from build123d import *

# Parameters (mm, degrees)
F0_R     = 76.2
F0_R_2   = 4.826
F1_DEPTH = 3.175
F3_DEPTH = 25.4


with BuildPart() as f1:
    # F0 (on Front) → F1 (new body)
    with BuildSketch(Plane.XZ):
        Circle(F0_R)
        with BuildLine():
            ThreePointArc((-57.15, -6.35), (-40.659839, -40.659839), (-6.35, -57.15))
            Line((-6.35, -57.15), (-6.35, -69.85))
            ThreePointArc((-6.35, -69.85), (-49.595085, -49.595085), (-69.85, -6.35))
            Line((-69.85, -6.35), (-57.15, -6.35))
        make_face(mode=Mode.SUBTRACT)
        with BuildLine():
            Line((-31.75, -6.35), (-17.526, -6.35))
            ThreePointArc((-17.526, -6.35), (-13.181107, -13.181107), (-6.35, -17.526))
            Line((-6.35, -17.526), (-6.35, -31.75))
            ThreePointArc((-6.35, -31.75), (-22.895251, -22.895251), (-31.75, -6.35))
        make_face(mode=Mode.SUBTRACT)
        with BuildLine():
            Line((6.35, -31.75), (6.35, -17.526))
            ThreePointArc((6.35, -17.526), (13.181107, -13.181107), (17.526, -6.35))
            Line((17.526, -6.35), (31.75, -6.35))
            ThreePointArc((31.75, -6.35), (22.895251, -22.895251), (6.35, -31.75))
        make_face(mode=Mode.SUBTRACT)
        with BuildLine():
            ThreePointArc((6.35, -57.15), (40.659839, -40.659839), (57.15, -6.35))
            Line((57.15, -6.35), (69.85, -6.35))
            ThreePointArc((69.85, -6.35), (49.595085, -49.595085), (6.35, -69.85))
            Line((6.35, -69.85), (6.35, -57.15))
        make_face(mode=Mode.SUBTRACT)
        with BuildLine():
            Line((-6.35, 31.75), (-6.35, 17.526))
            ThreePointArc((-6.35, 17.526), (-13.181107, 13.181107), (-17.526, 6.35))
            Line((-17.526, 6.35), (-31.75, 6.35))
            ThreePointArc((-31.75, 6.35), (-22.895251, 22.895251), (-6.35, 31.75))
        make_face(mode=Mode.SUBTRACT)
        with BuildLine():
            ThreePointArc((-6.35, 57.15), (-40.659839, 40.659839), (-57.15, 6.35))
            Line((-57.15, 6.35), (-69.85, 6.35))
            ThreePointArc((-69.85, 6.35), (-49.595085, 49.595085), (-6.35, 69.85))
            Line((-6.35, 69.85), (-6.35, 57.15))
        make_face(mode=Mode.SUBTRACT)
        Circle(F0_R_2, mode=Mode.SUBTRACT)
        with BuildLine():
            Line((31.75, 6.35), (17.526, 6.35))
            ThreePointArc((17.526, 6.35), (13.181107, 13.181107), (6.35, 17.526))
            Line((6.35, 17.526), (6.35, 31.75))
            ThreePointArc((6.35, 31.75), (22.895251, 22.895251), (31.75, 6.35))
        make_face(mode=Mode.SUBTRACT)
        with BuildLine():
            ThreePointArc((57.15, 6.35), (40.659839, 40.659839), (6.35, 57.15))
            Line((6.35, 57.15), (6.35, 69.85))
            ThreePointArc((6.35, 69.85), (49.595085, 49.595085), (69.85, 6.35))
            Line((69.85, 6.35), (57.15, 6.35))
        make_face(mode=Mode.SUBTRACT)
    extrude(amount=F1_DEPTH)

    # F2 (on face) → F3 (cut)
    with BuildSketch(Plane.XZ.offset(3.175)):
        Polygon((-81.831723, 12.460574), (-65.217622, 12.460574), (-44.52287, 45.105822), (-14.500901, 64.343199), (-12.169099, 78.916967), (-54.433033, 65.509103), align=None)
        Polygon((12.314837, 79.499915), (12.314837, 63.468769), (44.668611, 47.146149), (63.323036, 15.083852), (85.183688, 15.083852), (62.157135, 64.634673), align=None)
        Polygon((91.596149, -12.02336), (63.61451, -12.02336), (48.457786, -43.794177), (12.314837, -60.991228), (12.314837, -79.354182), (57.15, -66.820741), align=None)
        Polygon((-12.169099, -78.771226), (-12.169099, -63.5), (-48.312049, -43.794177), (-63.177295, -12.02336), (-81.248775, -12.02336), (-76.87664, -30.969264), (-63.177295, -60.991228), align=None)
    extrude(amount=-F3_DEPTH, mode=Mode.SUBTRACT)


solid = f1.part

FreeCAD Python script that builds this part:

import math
import FreeCAD as App
import Part
import Sketcher
Q = App.Units.Quantity


def add_polygon(sketch, points):
    """Adds a closed chain of lines whose ends are joined by coincident constraints."""
    first, n = sketch.GeometryCount, len(points)
    for a, b in zip(points, points[1:] + points[:1]):
        sketch.addGeometry(Part.LineSegment(App.Vector(*a, 0), App.Vector(*b, 0)), False)
    for i in range(n):
        sketch.addConstraint(Sketcher.Constraint("Coincident", first + i, 2, first + (i + 1) % n, 1))

doc = App.newDocument("Part")
body = doc.addObject("PartDesign::Body", "Body")

sketch1 = body.newObject("Sketcher::SketchObject", "Sketch")
sketch1.AttachmentSupport = (doc.getObject("XZ_Plane"), [""])
sketch1.MapMode = "FlatFace"
sketch1.addGeometry(Part.Circle(App.Vector(0, 0, 0), App.Vector(0, 0, 1), 76.2), False)
sketch1.addGeometry(Part.LineSegment(App.Vector(-69.8, -6.3, 0), App.Vector(-57.1, -6.3, 0)), False)
sketch1.addGeometry(Part.ArcOfCircle(Part.Circle(App.Vector(0, 0, 0), App.Vector(0, 0, 1), 57.5), math.radians(-174), math.radians(-96)), False)
sketch1.addGeometry(Part.LineSegment(App.Vector(-6.3, -57.1, 0), App.Vector(-6.3, -69.8, 0)), False)
sketch1.addGeometry(Part.ArcOfCircle(Part.Circle(App.Vector(0, 0, 0), App.Vector(0, 0, 1), 70.1), math.radians(-175), math.radians(-95)), False)
sketch1.addGeometry(Part.ArcOfCircle(Part.Circle(App.Vector(0, 0, 0), App.Vector(0, 0, 1), 32.4), math.radians(-169), math.radians(-101)), False)
sketch1.addGeometry(Part.LineSegment(App.Vector(-31.8, -6.3, 0), App.Vector(-17.5, -6.3, 0)), False)
sketch1.addGeometry(Part.ArcOfCircle(Part.Circle(App.Vector(0, 0, 0), App.Vector(0, 0, 1), 18.6), math.radians(-160), math.radians(-110)), False)
sketch1.addGeometry(Part.LineSegment(App.Vector(-6.3, -17.5, 0), App.Vector(-6.3, -31.8, 0)), False)
sketch1.addGeometry(Part.LineSegment(App.Vector(6.3, -69.8, 0), App.Vector(6.3, -57.1, 0)), False)
sketch1.addGeometry(Part.ArcOfCircle(Part.Circle(App.Vector(0, 0, 0), App.Vector(0, 0, 1), 57.5), math.radians(-84), math.radians(-6)), False)
sketch1.addGeometry(Part.LineSegment(App.Vector(57.1, -6.3, 0), App.Vector(69.8, -6.3, 0)), False)
sketch1.addGeometry(Part.ArcOfCircle(Part.Circle(App.Vector(0, 0, 0), App.Vector(0, 0, 1), 70.1), math.radians(-85), math.radians(-5)), False)
sketch1.addGeometry(Part.ArcOfCircle(Part.Circle(App.Vector(0, 0, 0), App.Vector(0, 0, 1), 32.4), math.radians(-79), math.radians(-11)), False)
sketch1.addGeometry(Part.LineSegment(App.Vector(6.3, -31.8, 0), App.Vector(6.3, -17.5, 0)), False)
sketch1.addGeometry(Part.ArcOfCircle(Part.Circle(App.Vector(0, 0, 0), App.Vector(0, 0, 1), 18.6), math.radians(-70), math.radians(-20)), False)
sketch1.addGeometry(Part.LineSegment(App.Vector(17.5, -6.3, 0), App.Vector(31.8, -6.3, 0)), False)
sketch1.addGeometry(Part.ArcOfCircle(Part.Circle(App.Vector(0, 0, 0), App.Vector(0, 0, 1), 32.4), math.radians(101), math.radians(169)), False)
sketch1.addGeometry(Part.LineSegment(App.Vector(-6.3, 31.8, 0), App.Vector(-6.3, 17.5, 0)), False)
sketch1.addGeometry(Part.ArcOfCircle(Part.Circle(App.Vector(0, 0, 0), App.Vector(0, 0, 1), 18.6), math.radians(110), math.radians(160)), False)
sketch1.addGeometry(Part.LineSegment(App.Vector(-17.5, 6.3, 0), App.Vector(-31.8, 6.3, 0)), False)
sketch1.addGeometry(Part.LineSegment(App.Vector(-6.3, 69.8, 0), App.Vector(-6.3, 57.1, 0)), False)
sketch1.addGeometry(Part.ArcOfCircle(Part.Circle(App.Vector(0, 0, 0), App.Vector(0, 0, 1), 57.5), math.radians(96), math.radians(174)), False)
sketch1.addGeometry(Part.LineSegment(App.Vector(-57.1, 6.3, 0), App.Vector(-69.8, 6.3, 0)), False)
sketch1.addGeometry(Part.ArcOfCircle(Part.Circle(App.Vector(0, 0, 0), App.Vector(0, 0, 1), 70.1), math.radians(95), math.radians(175)), False)
sketch1.addGeometry(Part.Circle(App.Vector(0, 0, 0), App.Vector(0, 0, 1), 4.8), False)
sketch1.addGeometry(Part.ArcOfCircle(Part.Circle(App.Vector(0, 0, 0), App.Vector(0, 0, 1), 32.4), math.radians(11), math.radians(79)), False)
sketch1.addGeometry(Part.LineSegment(App.Vector(31.8, 6.3, 0), App.Vector(17.5, 6.3, 0)), False)
sketch1.addGeometry(Part.ArcOfCircle(Part.Circle(App.Vector(0, 0, 0), App.Vector(0, 0, 1), 18.6), math.radians(20), math.radians(70)), False)
sketch1.addGeometry(Part.LineSegment(App.Vector(6.3, 17.5, 0), App.Vector(6.3, 31.8, 0)), False)
sketch1.addGeometry(Part.LineSegment(App.Vector(69.8, 6.3, 0), App.Vector(57.1, 6.3, 0)), False)
sketch1.addGeometry(Part.ArcOfCircle(Part.Circle(App.Vector(0, 0, 0), App.Vector(0, 0, 1), 57.5), math.radians(6), math.radians(84)), False)
sketch1.addGeometry(Part.LineSegment(App.Vector(6.3, 57.1, 0), App.Vector(6.3, 69.8, 0)), False)
sketch1.addGeometry(Part.ArcOfCircle(Part.Circle(App.Vector(0, 0, 0), App.Vector(0, 0, 1), 70.1), math.radians(5), math.radians(85)), False)
sketch1.addConstraint(Sketcher.Constraint("Coincident", 1, 2, 2, 1))
sketch1.addConstraint(Sketcher.Constraint("Coincident", 2, 2, 3, 1))
sketch1.addConstraint(Sketcher.Constraint("Coincident", 3, 2, 4, 2))
sketch1.addConstraint(Sketcher.Constraint("Coincident", 4, 1, 1, 1))
sketch1.addConstraint(Sketcher.Constraint("Coincident", 5, 1, 6, 1))
sketch1.addConstraint(Sketcher.Constraint("Coincident", 6, 2, 7, 1))
sketch1.addConstraint(Sketcher.Constraint("Coincident", 7, 2, 8, 1))
sketch1.addConstraint(Sketcher.Constraint("Coincident", 8, 2, 5, 2))
sketch1.addConstraint(Sketcher.Constraint("Coincident", 9, 2, 10, 1))
sketch1.addConstraint(Sketcher.Constraint("Coincident", 10, 2, 11, 1))
sketch1.addConstraint(Sketcher.Constraint("Coincident", 11, 2, 12, 2))
sketch1.addConstraint(Sketcher.Constraint("Coincident", 12, 1, 9, 1))
sketch1.addConstraint(Sketcher.Constraint("Coincident", 13, 1, 14, 1))
sketch1.addConstraint(Sketcher.Constraint("Coincident", 14, 2, 15, 1))
sketch1.addConstraint(Sketcher.Constraint("Coincident", 15, 2, 16, 1))
sketch1.addConstraint(Sketcher.Constraint("Coincident", 16, 2, 13, 2))
sketch1.addConstraint(Sketcher.Constraint("Coincident", 17, 1, 18, 1))
sketch1.addConstraint(Sketcher.Constraint("Coincident", 18, 2, 19, 1))
sketch1.addConstraint(Sketcher.Constraint("Coincident", 19, 2, 20, 1))
sketch1.addConstraint(Sketcher.Constraint("Coincident", 20, 2, 17, 2))
sketch1.addConstraint(Sketcher.Constraint("Coincident", 21, 2, 22, 1))
sketch1.addConstraint(Sketcher.Constraint("Coincident", 22, 2, 23, 1))
sketch1.addConstraint(Sketcher.Constraint("Coincident", 23, 2, 24, 2))
sketch1.addConstraint(Sketcher.Constraint("Coincident", 24, 1, 21, 1))
sketch1.addConstraint(Sketcher.Constraint("Coincident", 26, 1, 27, 1))
sketch1.addConstraint(Sketcher.Constraint("Coincident", 27, 2, 28, 1))
sketch1.addConstraint(Sketcher.Constraint("Coincident", 28, 2, 29, 1))
sketch1.addConstraint(Sketcher.Constraint("Coincident", 29, 2, 26, 2))
sketch1.addConstraint(Sketcher.Constraint("Coincident", 30, 2, 31, 1))
sketch1.addConstraint(Sketcher.Constraint("Coincident", 31, 2, 32, 1))
sketch1.addConstraint(Sketcher.Constraint("Coincident", 32, 2, 33, 2))
sketch1.addConstraint(Sketcher.Constraint("Coincident", 33, 1, 30, 1))
sketch1.addConstraint(Sketcher.Constraint("Horizontal", 1))
sketch1.addConstraint(Sketcher.Constraint("Vertical", 3))
sketch1.addConstraint(Sketcher.Constraint("Horizontal", 6))
sketch1.addConstraint(Sketcher.Constraint("Vertical", 8))
sketch1.addConstraint(Sketcher.Constraint("Vertical", 9))
sketch1.addConstraint(Sketcher.Constraint("Horizontal", 11))
sketch1.addConstraint(Sketcher.Constraint("Vertical", 14))
sketch1.addConstraint(Sketcher.Constraint("Horizontal", 16))
sketch1.addConstraint(Sketcher.Constraint("Vertical", 18))
sketch1.addConstraint(Sketcher.Constraint("Horizontal", 20))
sketch1.addConstraint(Sketcher.Constraint("Vertical", 21))
sketch1.addConstraint(Sketcher.Constraint("Horizontal", 23))
sketch1.addConstraint(Sketcher.Constraint("Horizontal", 27))
sketch1.addConstraint(Sketcher.Constraint("Vertical", 29))
sketch1.addConstraint(Sketcher.Constraint("Horizontal", 30))
sketch1.addConstraint(Sketcher.Constraint("Vertical", 32))
sketch1.addConstraint(Sketcher.Constraint("Coincident", 0, 3, -1, 1))
sketch1.addConstraint(Sketcher.Constraint("Coincident", 2, 3, -1, 1))
sketch1.addConstraint(Sketcher.Constraint("Coincident", 4, 3, -1, 1))
sketch1.addConstraint(Sketcher.Constraint("Coincident", 5, 3, -1, 1))
sketch1.addConstraint(Sketcher.Constraint("Coincident", 7, 3, -1, 1))
sketch1.addConstraint(Sketcher.Constraint("Coincident", 10, 3, -1, 1))
sketch1.addConstraint(Sketcher.Constraint("Coincident", 12, 3, -1, 1))
sketch1.addConstraint(Sketcher.Constraint("Coincident", 13, 3, -1, 1))
sketch1.addConstraint(Sketcher.Constraint("Coincident", 15, 3, -1, 1))
sketch1.addConstraint(Sketcher.Constraint("Coincident", 17, 3, -1, 1))
sketch1.addConstraint(Sketcher.Constraint("Coincident", 19, 3, -1, 1))
sketch1.addConstraint(Sketcher.Constraint("Coincident", 22, 3, -1, 1))
sketch1.addConstraint(Sketcher.Constraint("Coincident", 24, 3, -1, 1))
sketch1.addConstraint(Sketcher.Constraint("Coincident", 25, 3, -1, 1))
sketch1.addConstraint(Sketcher.Constraint("Coincident", 26, 3, -1, 1))
sketch1.addConstraint(Sketcher.Constraint("Coincident", 28, 3, -1, 1))
sketch1.addConstraint(Sketcher.Constraint("Coincident", 31, 3, -1, 1))
sketch1.addConstraint(Sketcher.Constraint("Coincident", 33, 3, -1, 1))
sketch1.addConstraint(Sketcher.Constraint("Equal", 2, 10))
sketch1.addConstraint(Sketcher.Constraint("Equal", 4, 12))
sketch1.addConstraint(Sketcher.Constraint("Equal", 5, 13))
sketch1.addConstraint(Sketcher.Constraint("Equal", 7, 15))
sketch1.addConstraint(Sketcher.Constraint("Equal", 13, 17))
sketch1.addConstraint(Sketcher.Constraint("Equal", 15, 19))
sketch1.addConstraint(Sketcher.Constraint("Equal", 10, 22))
sketch1.addConstraint(Sketcher.Constraint("Equal", 12, 24))
sketch1.addConstraint(Sketcher.Constraint("Equal", 17, 26))
sketch1.addConstraint(Sketcher.Constraint("Equal", 19, 28))
sketch1.addConstraint(Sketcher.Constraint("Equal", 22, 31))
sketch1.addConstraint(Sketcher.Constraint("Equal", 24, 33))
sketch1.addConstraint(Sketcher.Constraint("Horizontal", 4, 1, 5, 1))
sketch1.addConstraint(Sketcher.Constraint("Horizontal", 2, 2, 9, 2))
sketch1.addConstraint(Sketcher.Constraint("Horizontal", 6, 2, 10, 2))
sketch1.addConstraint(Sketcher.Constraint("Horizontal", 8, 2, 13, 1))
sketch1.addConstraint(Sketcher.Constraint("Horizontal", 11, 2, 15, 2))
sketch1.addConstraint(Sketcher.Constraint("Horizontal", 20, 2, 22, 2))
sketch1.addConstraint(Sketcher.Constraint("Horizontal", 23, 2, 26, 1))
sketch1.addConstraint(Sketcher.Constraint("Horizontal", 18, 2, 28, 2))
sketch1.addConstraint(Sketcher.Constraint("Horizontal", 27, 2, 30, 2))
sketch1.addConstraint(Sketcher.Constraint("Horizontal", 21, 2, 31, 2))
sketch1.addConstraint(Sketcher.Constraint("Vertical", 3, 2, 7, 2))
sketch1.addConstraint(Sketcher.Constraint("Vertical", 8, 2, 17, 1))
sketch1.addConstraint(Sketcher.Constraint("Vertical", 6, 2, 19, 2))
sketch1.addConstraint(Sketcher.Constraint("Vertical", 18, 2, 21, 2))
sketch1.addConstraint(Sketcher.Constraint("Equal", 30, 3))
sketch1.addConstraint(Sketcher.Constraint("Diameter", 0, Q("6 in")))
sketch1.addConstraint(Sketcher.Constraint("Diameter", 25, Q("0.38 in")))
sketch1.addConstraint(Sketcher.Constraint("DistanceX", 1, 1, 1, 2, Q("0.5 in")))
sketch1.addConstraint(Sketcher.Constraint("DistanceX", 1, 2, 5, 1, Q("1 in")))
sketch1.addConstraint(Sketcher.Constraint("DistanceY", 8, 2, 6, 2, Q("1 in")))
sketch1.addConstraint(Sketcher.Constraint("DistanceX", 6, 1, 6, 2, Q("0.56 in")))
sketch1.addConstraint(Sketcher.Constraint("DistanceX", 2, 2, 9, 2, Q("0.5 in")))
pad1 = body.newObject("PartDesign::Pad", "Pad")
pad1.Profile = sketch1
pad1.Length = Q("0.125 in")

sketch2 = body.newObject("Sketcher::SketchObject", "Sketch001")
sketch2.AttachmentSupport = (doc.getObject("XZ_Plane"), [""])
sketch2.MapMode = "FlatFace"
sketch2.AttachmentOffset = App.Placement(App.Vector(0, 0, 0.125 * 25.4), App.Rotation())
add_polygon(sketch2, [(-82, 12), (-65, 12), (-45, 45), (-15, 64), (-12, 79), (-54, 66)])
add_polygon(sketch2, [(12, 79), (12, 63), (45, 47), (63, 15), (85, 15), (62, 65)])
add_polygon(sketch2, [(92, -12), (64, -12), (48, -44), (12, -61), (12, -79), (57, -67)])
add_polygon(sketch2, [(-12, -79), (-12, -64), (-48, -44), (-63, -12), (-81, -12), (-77, -31), (-63, -61)])
sketch2.addConstraint(Sketcher.Constraint("Horizontal", 0))
sketch2.addConstraint(Sketcher.Constraint("Vertical", 6))
sketch2.addConstraint(Sketcher.Constraint("Horizontal", 9))
sketch2.addConstraint(Sketcher.Constraint("Horizontal", 12))
sketch2.addConstraint(Sketcher.Constraint("Vertical", 15))
sketch2.addConstraint(Sketcher.Constraint("Vertical", 18))
sketch2.addConstraint(Sketcher.Constraint("Horizontal", 21))
sketch2.addConstraint(Sketcher.Constraint("Horizontal", 13, 2, 19, 2))
sketch2.addConstraint(Sketcher.Constraint("Horizontal", 17, 2, 20, 2))
sketch2.addConstraint(Sketcher.Constraint("Horizontal", 14, 2, 23, 2))
sketch2.addConstraint(Sketcher.Constraint("Vertical", 11, 2, 14, 2))
sketch2.addConstraint(Sketcher.Constraint("Vertical", 3, 2, 18, 2))
sketch2.addConstraint(Sketcher.Constraint("Vertical", 20, 2, 23, 2))
sketch2.addConstraint(Sketcher.Constraint("DistanceY", 18, 2, -1, 1, Q("2.5 in")))
sketch2.addConstraint(Sketcher.Constraint("DistanceY", 15, 2, 13, 2, Q("1.4000002 in")))
sketch2.addConstraint(Sketcher.Constraint("DistanceY", 24, 2, 14, 2, Q("0.6999999 in")))
sketch2.addConstraint(Sketcher.Constraint("DistanceX", -1, 1, 16, 2, Q("2.25 in")))
sketch2.addConstraint(Sketcher.Constraint("DistanceX", 0, 1, 0, 2, Q("16.614101 mm")))
sketch2.addConstraint(Sketcher.Constraint("Distance", 1, Q("38.652102 mm")))
sketch2.addConstraint(Sketcher.Constraint("DistanceX", 12, 2, 12, 1, Q("27.981639 mm")))
sketch2.addConstraint(Sketcher.Constraint("DistanceX", 21, 2, 21, 1, Q("18.07148 mm")))
sketch2.addConstraint(Sketcher.Constraint("DistanceX", 2, 2, -1, 1, Q("14.500901 mm")))
sketch2.addConstraint(Sketcher.Constraint("DistanceY", -1, 1, 2, 2, Q("64.343199 mm")))
sketch2.addConstraint(Sketcher.Constraint("DistanceX", 3, 2, -1, 1, Q("12.169099 mm")))
sketch2.addConstraint(Sketcher.Constraint("DistanceX", 6, 2, 8, 2, Q("51.008199 mm")))
sketch2.addConstraint(Sketcher.Constraint("DistanceX", 10, 2, 8, 2, Q("1.165901 mm")))
sketch2.addConstraint(Sketcher.Constraint("DistanceX", 7, 2, 12, 2, Q("18.945899 mm")))
sketch2.addConstraint(Sketcher.Constraint("DistanceY", 14, 2, 0, 2, Q("73.451802 mm")))
sketch2.addConstraint(Sketcher.Constraint("Distance", 2, Q("35.65663 mm")))
sketch2.addConstraint(Sketcher.Constraint("Distance", 4, Q("44.339722 mm")))
sketch2.addConstraint(Sketcher.Constraint("Distance", 13, Q("35.20101 mm")))
sketch2.addConstraint(Sketcher.Constraint("Distance", 19, Q("41.165912 mm")))
sketch2.addConstraint(Sketcher.Constraint("Distance", 22, Q("19.443838 mm")))
sketch2.addConstraint(Sketcher.Constraint("DistanceX", 9, 1, 9, 2, Q("21.860652 mm")))
sketch2.addConstraint(Sketcher.Constraint("DistanceY", 6, 2, 6, 1, Q("16.031146 mm")))
sketch2.addConstraint(Sketcher.Constraint("DistanceY", 15, 2, 15, 1, Q("18.362954 mm")))
sketch2.addConstraint(Sketcher.Constraint("DistanceY", 18, 1, 18, 2, Q("15.271226 mm")))
sketch2.addConstraint(Sketcher.Constraint("DistanceX", 1, 2, -1, 1, Q("44.52287 mm")))
sketch2.addConstraint(Sketcher.Constraint("DistanceY", -1, 1, 6, 2, Q("63.468769 mm")))
sketch2.addConstraint(Sketcher.Constraint("DistanceX", -1, 1, 7, 2, Q("44.668611 mm")))
sketch2.addConstraint(Sketcher.Constraint("DistanceY", -1, 1, 7, 2, Q("47.146149 mm")))
sketch2.addConstraint(Sketcher.Constraint("DistanceX", -1, 1, 9, 2, Q("85.183688 mm")))
sketch2.addConstraint(Sketcher.Constraint("DistanceY", 12, 2, -1, 1, Q("12.02336 mm")))
sketch2.addConstraint(Sketcher.Constraint("DistanceY", 16, 2, -1, 1, Q("66.820741 mm")))
sketch2.addConstraint(Sketcher.Constraint("DistanceX", 22, 2, -1, 1, Q("76.87664 mm")))
sketch2.addConstraint(Sketcher.Constraint("DistanceY", 2, 2, 3, 2, Q("14.573768 mm")))
sketch2.addConstraint(Sketcher.Constraint("DistanceY", 1, 2, 4, 2, Q("20.403281 mm")))
sketch2.addConstraint(Sketcher.Constraint("DistanceY", 8, 2, 1, 2, Q("30.02197 mm")))
sketch2.addConstraint(Sketcher.Constraint("DistanceY", 8, 2, 10, 2, Q("49.550821 mm")))
sketch2.addConstraint(Sketcher.Constraint("DistanceX", 5, 2, 21, 2, Q("0.582948 mm")))
pocket1 = body.newObject("PartDesign::Pocket", "Pocket")
pocket1.Profile = sketch2
pocket1.Length = Q("1 in")

doc.recompute()
